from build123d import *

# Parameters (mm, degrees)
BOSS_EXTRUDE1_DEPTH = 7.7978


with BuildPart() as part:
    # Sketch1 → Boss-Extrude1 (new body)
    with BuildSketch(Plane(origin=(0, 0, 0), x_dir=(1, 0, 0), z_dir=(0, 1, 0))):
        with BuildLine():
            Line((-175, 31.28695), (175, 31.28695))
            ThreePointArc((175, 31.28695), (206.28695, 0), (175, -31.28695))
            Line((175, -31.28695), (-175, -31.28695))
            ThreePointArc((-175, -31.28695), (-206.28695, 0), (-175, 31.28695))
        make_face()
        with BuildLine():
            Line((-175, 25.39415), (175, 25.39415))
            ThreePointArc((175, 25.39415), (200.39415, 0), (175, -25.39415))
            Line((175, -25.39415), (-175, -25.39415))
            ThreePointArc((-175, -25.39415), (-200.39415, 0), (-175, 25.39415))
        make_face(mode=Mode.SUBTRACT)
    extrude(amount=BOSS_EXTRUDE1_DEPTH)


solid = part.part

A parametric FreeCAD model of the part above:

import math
import FreeCAD as App
import Part
import Sketcher

V = App.Vector
Q = App.Units.Quantity

doc = App.newDocument("Part")
body = doc.addObject("PartDesign::Body", "Body")

sketch1 = body.newObject("Sketcher::SketchObject", "Sketch")
sketch1.AttachmentSupport = (doc.getObject("XZ_Plane"), [""])
sketch1.MapMode = "FlatFace"
sketch1.addGeometry(Part.LineSegment(V(175, -31.28695, 0), V(-175, -31.28695, 0)), False)
sketch1.addGeometry(Part.ArcOfCircle(Part.Circle(V(-175, 0, 0), V(0, 0, 1), 31.28695), math.radians(90), math.radians(270)), False)
sketch1.addGeometry(Part.LineSegment(V(-175, 31.28695, 0), V(175, 31.28695, 0)), False)
sketch1.addGeometry(Part.ArcOfCircle(Part.Circle(V(175, 0, 0), V(0, 0, 1), 31.28695), math.radians(-90), math.radians(90)), False)
sketch1.addGeometry(Part.LineSegment(V(-175, -25.39415, 0), V(175, -25.39415, 0)), False)
sketch1.addGeometry(Part.ArcOfCircle(Part.Circle(V(175, 0, 0), V(0, 0, 1), 25.39415), math.radians(-90), math.radians(90)), False)
sketch1.addGeometry(Part.LineSegment(V(175, 25.39415, 0), V(-175, 25.39415, 0)), False)
sketch1.addGeometry(Part.ArcOfCircle(Part.Circle(V(-175, 0, 0), V(0, 0, 1), 25.39415), math.radians(90), math.radians(270)), False)
sketch1.addConstraint(Sketcher.Constraint("Tangent", 0, 2, 1, 2))
sketch1.addConstraint(Sketcher.Constraint("Tangent", 1, 1, 2, 1))
sketch1.addConstraint(Sketcher.Constraint("Tangent", 2, 2, 3, 2))
sketch1.addConstraint(Sketcher.Constraint("Tangent", 3, 1, 0, 1))
sketch1.addConstraint(Sketcher.Constraint("Tangent", 4, 2, 5, 1))
sketch1.addConstraint(Sketcher.Constraint("Tangent", 5, 2, 6, 1))
sketch1.addConstraint(Sketcher.Constraint("Tangent", 6, 2, 7, 1))
sketch1.addConstraint(Sketcher.Constraint("Tangent", 7, 2, 4, 1))
sketch1.addConstraint(Sketcher.Constraint("Horizontal", 0))
sketch1.addConstraint(Sketcher.Constraint("Horizontal", 2))
sketch1.addConstraint(Sketcher.Constraint("Horizontal", 4))
sketch1.addConstraint(Sketcher.Constraint("Horizontal", 6))
sketch1.addConstraint(Sketcher.Constraint("Coincident", 5, 3, 3, 3))
sketch1.addConstraint(Sketcher.Constraint("Symmetric", 1, 3, 3, 3, -1, 1))
sketch1.addConstraint(Sketcher.Constraint("Vertical", 7, 3, 0, 2))
sketch1.addConstraint(Sketcher.Constraint("DistanceX", 0, 2, 0, 1, Q("350 mm")))
sketch1.addConstraint(Sketcher.Constraint("Radius", 1, Q("31.28695 mm")))
sketch1.addConstraint(Sketcher.Constraint("Radius", 5, Q("25.39415 mm")))
pad1 = body.newObject("PartDesign::Pad", "Pad")
pad1.Profile = sketch1
pad1.Length = 7.7978
pad1.Reversed = True

doc.recompute()
